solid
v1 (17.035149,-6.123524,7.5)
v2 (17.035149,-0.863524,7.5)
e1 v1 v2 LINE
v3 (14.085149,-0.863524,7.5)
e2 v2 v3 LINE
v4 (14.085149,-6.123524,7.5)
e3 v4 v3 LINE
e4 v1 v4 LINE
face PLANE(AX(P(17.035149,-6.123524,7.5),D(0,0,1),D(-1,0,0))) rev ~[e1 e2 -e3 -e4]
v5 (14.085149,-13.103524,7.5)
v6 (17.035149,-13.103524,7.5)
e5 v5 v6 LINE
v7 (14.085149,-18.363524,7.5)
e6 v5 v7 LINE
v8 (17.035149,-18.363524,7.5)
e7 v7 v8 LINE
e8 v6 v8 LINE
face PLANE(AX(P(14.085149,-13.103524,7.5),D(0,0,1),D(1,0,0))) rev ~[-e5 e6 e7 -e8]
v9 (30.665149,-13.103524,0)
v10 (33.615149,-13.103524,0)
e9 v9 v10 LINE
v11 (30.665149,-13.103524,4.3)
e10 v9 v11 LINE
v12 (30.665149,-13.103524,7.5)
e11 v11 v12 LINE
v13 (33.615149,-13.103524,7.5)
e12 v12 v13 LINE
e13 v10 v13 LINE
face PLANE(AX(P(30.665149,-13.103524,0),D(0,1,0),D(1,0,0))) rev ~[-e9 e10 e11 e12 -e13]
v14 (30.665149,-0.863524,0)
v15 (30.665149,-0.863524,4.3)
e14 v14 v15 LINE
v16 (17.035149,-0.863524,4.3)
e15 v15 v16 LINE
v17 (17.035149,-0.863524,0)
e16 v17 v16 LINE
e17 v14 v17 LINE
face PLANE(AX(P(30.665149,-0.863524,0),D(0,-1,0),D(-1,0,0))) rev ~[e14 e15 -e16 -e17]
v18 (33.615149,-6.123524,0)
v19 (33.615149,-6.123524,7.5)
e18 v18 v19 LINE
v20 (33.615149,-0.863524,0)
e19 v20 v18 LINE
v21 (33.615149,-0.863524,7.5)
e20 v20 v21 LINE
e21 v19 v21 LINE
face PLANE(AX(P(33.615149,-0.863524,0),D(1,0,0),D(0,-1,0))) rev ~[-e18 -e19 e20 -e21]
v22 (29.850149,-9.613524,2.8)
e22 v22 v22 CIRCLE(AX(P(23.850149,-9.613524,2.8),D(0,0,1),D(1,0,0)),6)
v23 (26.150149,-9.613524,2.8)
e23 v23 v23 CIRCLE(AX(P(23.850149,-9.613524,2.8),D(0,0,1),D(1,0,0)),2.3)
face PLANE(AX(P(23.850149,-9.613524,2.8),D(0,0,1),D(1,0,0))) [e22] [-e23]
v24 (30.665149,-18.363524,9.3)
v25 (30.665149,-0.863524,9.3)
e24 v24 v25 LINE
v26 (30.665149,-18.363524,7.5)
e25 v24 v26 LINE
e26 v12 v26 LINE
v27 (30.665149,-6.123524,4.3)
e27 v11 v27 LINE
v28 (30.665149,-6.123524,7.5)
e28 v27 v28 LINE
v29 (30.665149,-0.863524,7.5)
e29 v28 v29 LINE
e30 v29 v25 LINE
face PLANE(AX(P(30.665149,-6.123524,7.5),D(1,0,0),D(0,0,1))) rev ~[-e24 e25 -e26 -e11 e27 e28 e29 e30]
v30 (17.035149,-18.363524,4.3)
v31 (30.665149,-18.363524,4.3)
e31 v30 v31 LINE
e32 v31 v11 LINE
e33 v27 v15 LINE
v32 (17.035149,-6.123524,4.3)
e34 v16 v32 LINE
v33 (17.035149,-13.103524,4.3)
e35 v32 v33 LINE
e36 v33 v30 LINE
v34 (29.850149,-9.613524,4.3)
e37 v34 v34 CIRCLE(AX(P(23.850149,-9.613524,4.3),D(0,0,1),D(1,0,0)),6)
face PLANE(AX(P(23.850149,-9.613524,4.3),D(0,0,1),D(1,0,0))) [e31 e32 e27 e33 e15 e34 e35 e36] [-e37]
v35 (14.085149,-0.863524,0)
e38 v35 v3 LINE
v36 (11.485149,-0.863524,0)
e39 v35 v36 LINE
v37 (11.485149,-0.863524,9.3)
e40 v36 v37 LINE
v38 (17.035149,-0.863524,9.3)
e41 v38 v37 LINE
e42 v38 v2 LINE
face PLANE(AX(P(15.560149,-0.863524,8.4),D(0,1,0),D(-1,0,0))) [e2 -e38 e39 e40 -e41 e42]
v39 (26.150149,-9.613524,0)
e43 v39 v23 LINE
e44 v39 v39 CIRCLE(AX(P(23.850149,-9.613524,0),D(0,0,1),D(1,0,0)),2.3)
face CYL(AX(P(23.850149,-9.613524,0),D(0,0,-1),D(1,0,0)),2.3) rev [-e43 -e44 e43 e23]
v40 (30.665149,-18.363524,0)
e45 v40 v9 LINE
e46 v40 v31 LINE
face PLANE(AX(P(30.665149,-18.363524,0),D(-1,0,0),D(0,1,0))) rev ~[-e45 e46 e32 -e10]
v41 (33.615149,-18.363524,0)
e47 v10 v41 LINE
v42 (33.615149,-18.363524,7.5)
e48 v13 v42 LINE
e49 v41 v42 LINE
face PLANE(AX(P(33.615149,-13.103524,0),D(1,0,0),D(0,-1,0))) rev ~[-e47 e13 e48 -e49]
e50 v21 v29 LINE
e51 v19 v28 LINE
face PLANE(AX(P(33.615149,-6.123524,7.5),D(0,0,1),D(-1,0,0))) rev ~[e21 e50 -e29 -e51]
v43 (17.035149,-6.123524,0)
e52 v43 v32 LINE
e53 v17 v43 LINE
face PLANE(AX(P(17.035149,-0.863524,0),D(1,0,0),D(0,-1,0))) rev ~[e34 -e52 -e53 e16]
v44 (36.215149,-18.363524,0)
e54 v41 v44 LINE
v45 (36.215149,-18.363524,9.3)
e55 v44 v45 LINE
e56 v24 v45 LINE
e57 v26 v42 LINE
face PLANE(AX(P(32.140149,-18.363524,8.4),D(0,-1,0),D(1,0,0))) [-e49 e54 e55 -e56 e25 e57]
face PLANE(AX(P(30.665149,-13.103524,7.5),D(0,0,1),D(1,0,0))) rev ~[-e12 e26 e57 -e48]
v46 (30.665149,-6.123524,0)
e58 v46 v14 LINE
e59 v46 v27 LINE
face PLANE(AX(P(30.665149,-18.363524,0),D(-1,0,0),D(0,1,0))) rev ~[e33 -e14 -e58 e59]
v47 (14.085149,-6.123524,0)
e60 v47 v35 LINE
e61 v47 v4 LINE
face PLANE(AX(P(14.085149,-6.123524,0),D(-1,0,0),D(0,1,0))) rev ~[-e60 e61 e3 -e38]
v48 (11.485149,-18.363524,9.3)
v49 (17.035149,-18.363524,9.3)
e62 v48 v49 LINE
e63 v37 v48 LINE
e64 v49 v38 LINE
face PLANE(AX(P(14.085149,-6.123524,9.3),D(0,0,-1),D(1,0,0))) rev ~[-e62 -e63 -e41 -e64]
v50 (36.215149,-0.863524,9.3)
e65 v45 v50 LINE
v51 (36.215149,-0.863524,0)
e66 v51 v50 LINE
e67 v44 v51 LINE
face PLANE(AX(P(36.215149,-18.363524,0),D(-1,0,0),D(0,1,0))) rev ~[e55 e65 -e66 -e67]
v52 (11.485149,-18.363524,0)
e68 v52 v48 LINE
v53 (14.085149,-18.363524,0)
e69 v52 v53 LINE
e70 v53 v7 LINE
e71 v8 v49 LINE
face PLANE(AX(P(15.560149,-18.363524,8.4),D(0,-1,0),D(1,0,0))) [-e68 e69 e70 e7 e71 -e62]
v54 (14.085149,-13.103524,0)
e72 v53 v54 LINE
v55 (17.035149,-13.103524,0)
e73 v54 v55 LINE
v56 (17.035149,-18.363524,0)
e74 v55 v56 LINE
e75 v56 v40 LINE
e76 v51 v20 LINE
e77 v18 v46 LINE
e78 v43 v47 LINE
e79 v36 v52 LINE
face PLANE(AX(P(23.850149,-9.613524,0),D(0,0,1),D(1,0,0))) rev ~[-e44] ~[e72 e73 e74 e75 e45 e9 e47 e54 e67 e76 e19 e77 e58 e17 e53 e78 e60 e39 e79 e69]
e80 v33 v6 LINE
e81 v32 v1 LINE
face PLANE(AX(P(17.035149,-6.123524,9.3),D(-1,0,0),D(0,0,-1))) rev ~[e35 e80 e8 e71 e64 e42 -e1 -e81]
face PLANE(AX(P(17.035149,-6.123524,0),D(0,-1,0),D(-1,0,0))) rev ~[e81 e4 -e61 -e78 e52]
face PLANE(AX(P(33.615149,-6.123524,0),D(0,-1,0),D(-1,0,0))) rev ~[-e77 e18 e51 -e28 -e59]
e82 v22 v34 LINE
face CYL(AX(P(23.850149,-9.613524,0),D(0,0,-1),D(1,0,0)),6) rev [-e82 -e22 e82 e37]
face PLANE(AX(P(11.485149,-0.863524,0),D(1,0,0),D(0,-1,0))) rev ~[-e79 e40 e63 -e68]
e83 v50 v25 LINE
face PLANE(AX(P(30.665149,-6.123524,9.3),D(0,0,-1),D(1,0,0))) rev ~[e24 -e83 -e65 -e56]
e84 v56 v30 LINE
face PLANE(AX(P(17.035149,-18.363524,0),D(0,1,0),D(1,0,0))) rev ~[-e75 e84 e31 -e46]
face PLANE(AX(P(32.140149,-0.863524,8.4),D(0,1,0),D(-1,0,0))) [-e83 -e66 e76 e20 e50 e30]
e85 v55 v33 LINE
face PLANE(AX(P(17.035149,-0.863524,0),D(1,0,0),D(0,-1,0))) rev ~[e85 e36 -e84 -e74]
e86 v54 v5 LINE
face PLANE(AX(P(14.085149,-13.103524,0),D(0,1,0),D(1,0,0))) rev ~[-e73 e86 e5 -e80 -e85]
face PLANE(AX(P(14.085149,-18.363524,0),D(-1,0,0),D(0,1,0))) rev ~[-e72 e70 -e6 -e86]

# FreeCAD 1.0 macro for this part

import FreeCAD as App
import Part
import Sketcher

V = App.Vector
Q = App.Units.Quantity

doc = App.newDocument("Part")
params = doc.addObject("Spreadsheet::Sheet", "Params")
for row, (alias, value) in enumerate([
    ("sketch1_width", "2.6 mm"),
    ("sketch1_height", "17.5 mm"),
    ("sketch1_width2", "2.95 mm"),
    ("sketch1_height2", "5.26 mm"),
    ("pad1_length", "9.3 mm"),
    ("sketch2_width", "2.6 mm"),
    ("sketch2_height", "17.5 mm"),
    ("sketch2_width2", "2.95 mm"),
    ("sketch2_height2", "5.26 mm"),
    ("pad2_length", "9.3 mm"),
    ("sketch3_diameter", "12 mm"),
    ("sketch3_height", "17.5 mm"),
    ("sketch3_width", "13.63 mm"),
    ("pad3_length", "4.3 mm"),
    ("sketch4_diameter", "12 mm"),
    ("sketch4_diameter2", "4.6 mm"),
    ("pad4_length", "2.8 mm"),
    ("sketch5_height", "1.8 mm"),
    ("sketch5_width", "2.95 mm"),
    ("pad5_length", "5.26 mm"),
    ("sketch6_height", "1.8 mm"),
    ("sketch6_width", "2.95 mm"),
    ("pad6_length", "5.26 mm"),
    ("sketch7_height", "1.8 mm"),
    ("sketch7_width", "2.95 mm"),
    ("pad7_length", "5.26 mm"),
    ("sketch8_height", "1.8 mm"),
    ("sketch8_width", "2.95 mm"),
    ("pad8_length", "5.26 mm"),
], start=1):
    params.set(f"A{row}", alias)
    params.set(f"B{row}", "=" + value)
    params.setAlias(f"B{row}", alias)

body = doc.addObject("PartDesign::Body", "Body")

# Sketch on XY plane
sketch1 = body.newObject("Sketcher::SketchObject", "Sketch")
sketch1.AttachmentSupport = (doc.getObject("XY_Plane"), [""])
sketch1.MapMode = "FlatFace"
sketch1.addGeometry(Part.LineSegment(V(36.215149, -0.863524, 0), V(33.615149, -0.863524, 0)), False)
sketch1.addGeometry(Part.LineSegment(V(33.615149, -0.863524, 0), V(33.615149, -6.123524, 0)), False)
sketch1.addGeometry(Part.LineSegment(V(33.615149, -6.123524, 0), V(30.665149, -6.123524, 0)), False)
sketch1.addGeometry(Part.LineSegment(V(30.665149, -6.123524, 0), V(30.665149, -13.103524, 0)), False)
sketch1.addGeometry(Part.LineSegment(V(30.665149, -13.103524, 0), V(33.615149, -13.103524, 0)), False)
sketch1.addGeometry(Part.LineSegment(V(33.615149, -13.103524, 0), V(33.615149, -18.363524, 0)), False)
sketch1.addGeometry(Part.LineSegment(V(33.615149, -18.363524, 0), V(36.215149, -18.363524, 0)), False)
sketch1.addGeometry(Part.LineSegment(V(36.215149, -18.363524, 0), V(36.215149, -0.863524, 0)), False)
sketch1.addConstraint(Sketcher.Constraint("Coincident", 0, 2, 1, 1))
sketch1.addConstraint(Sketcher.Constraint("Coincident", 1, 2, 2, 1))
sketch1.addConstraint(Sketcher.Constraint("Coincident", 2, 2, 3, 1))
sketch1.addConstraint(Sketcher.Constraint("Coincident", 3, 2, 4, 1))
sketch1.addConstraint(Sketcher.Constraint("Coincident", 4, 2, 5, 1))
sketch1.addConstraint(Sketcher.Constraint("Coincident", 5, 2, 6, 1))
sketch1.addConstraint(Sketcher.Constraint("Coincident", 6, 2, 7, 1))
sketch1.addConstraint(Sketcher.Constraint("Coincident", 7, 2, 0, 1))
sketch1.addConstraint(Sketcher.Constraint("Horizontal", 0))
sketch1.addConstraint(Sketcher.Constraint("Vertical", 1))
sketch1.addConstraint(Sketcher.Constraint("Horizontal", 2))
sketch1.addConstraint(Sketcher.Constraint("Vertical", 3))
sketch1.addConstraint(Sketcher.Constraint("Horizontal", 4))
sketch1.addConstraint(Sketcher.Constraint("Vertical", 5))
sketch1.addConstraint(Sketcher.Constraint("Horizontal", 6))
sketch1.addConstraint(Sketcher.Constraint("Vertical", 7))
sketch1.addConstraint(Sketcher.Constraint("Vertical", 1, 2, 4, 2))
sketch1.addConstraint(Sketcher.Constraint("Equal", 1, 5))
sketch1.addConstraint(Sketcher.Constraint("DistanceX", 0, 2, 0, 1, Q("2.6 mm")))
sketch1.addConstraint(Sketcher.Constraint("DistanceY", 7, 1, 7, 2, Q("17.5 mm")))
sketch1.addConstraint(Sketcher.Constraint("DistanceX", 2, 2, 2, 1, Q("2.95 mm")))
sketch1.addConstraint(Sketcher.Constraint("DistanceY", 1, 2, 1, 1, Q("5.26 mm")))
sketch1.addConstraint(Sketcher.Constraint("DistanceX", -1, 1, 0, 2, Q("33.615149 mm")))
sketch1.addConstraint(Sketcher.Constraint("DistanceY", 0, 2, -1, 1, Q("0.863524 mm")))
sketch1.setExpression("Constraints[18]", "Params.sketch1_width")
sketch1.setExpression("Constraints[19]", "Params.sketch1_height")
sketch1.setExpression("Constraints[20]", "Params.sketch1_width2")
sketch1.setExpression("Constraints[21]", "Params.sketch1_height2")
pad1 = body.newObject("PartDesign::Pad", "Pad")
pad1.Profile = sketch1
pad1.setExpression("Length", "Params.pad1_length")
body2 = doc.addObject("PartDesign::Body", "Body001")

# Sketch on XY plane
sketch2 = body2.newObject("Sketcher::SketchObject", "Sketch001")
sketch2.AttachmentSupport = (doc.getObject("XY_Plane001"), [""])
sketch2.MapMode = "FlatFace"
sketch2.addGeometry(Part.LineSegment(V(14.085149, -0.863524, 0), V(11.485149, -0.863524, 0)), False)
sketch2.addGeometry(Part.LineSegment(V(11.485149, -0.863524, 0), V(11.485149, -18.363524, 0)), False)
sketch2.addGeometry(Part.LineSegment(V(11.485149, -18.363524, 0), V(14.085149, -18.363524, 0)), False)
sketch2.addGeometry(Part.LineSegment(V(14.085149, -18.363524, 0), V(14.085149, -13.103524, 0)), False)
sketch2.addGeometry(Part.LineSegment(V(14.085149, -13.103524, 0), V(17.035149, -13.103524, 0)), False)
sketch2.addGeometry(Part.LineSegment(V(17.035149, -13.103524, 0), V(17.035149, -6.123524, 0)), False)
sketch2.addGeometry(Part.LineSegment(V(17.035149, -6.123524, 0), V(14.085149, -6.123524, 0)), False)
sketch2.addGeometry(Part.LineSegment(V(14.085149, -6.123524, 0), V(14.085149, -0.863524, 0)), False)
sketch2.addConstraint(Sketcher.Constraint("Coincident", 0, 2, 1, 1))
sketch2.addConstraint(Sketcher.Constraint("Coincident", 1, 2, 2, 1))
sketch2.addConstraint(Sketcher.Constraint("Coincident", 2, 2, 3, 1))
sketch2.addConstraint(Sketcher.Constraint("Coincident", 3, 2, 4, 1))
sketch2.addConstraint(Sketcher.Constraint("Coincident", 4, 2, 5, 1))
sketch2.addConstraint(Sketcher.Constraint("Coincident", 5, 2, 6, 1))
sketch2.addConstraint(Sketcher.Constraint("Coincident", 6, 2, 7, 1))
sketch2.addConstraint(Sketcher.Constraint("Coincident", 7, 2, 0, 1))
sketch2.addConstraint(Sketcher.Constraint("Horizontal", 0))
sketch2.addConstraint(Sketcher.Constraint("Vertical", 1))
sketch2.addConstraint(Sketcher.Constraint("Horizontal", 2))
sketch2.addConstraint(Sketcher.Constraint("Vertical", 3))
sketch2.addConstraint(Sketcher.Constraint("Horizontal", 4))
sketch2.addConstraint(Sketcher.Constraint("Vertical", 5))
sketch2.addConstraint(Sketcher.Constraint("Horizontal", 6))
sketch2.addConstraint(Sketcher.Constraint("Vertical", 7))
sketch2.addConstraint(Sketcher.Constraint("Vertical", 3, 2, 6, 2))
sketch2.addConstraint(Sketcher.Constraint("Equal", 3, 7))
sketch2.addConstraint(Sketcher.Constraint("DistanceX", 0, 2, 0, 1, Q("2.6 mm")))
sketch2.addConstraint(Sketcher.Constraint("DistanceY", 1, 2, 1, 1, Q("17.5 mm")))
sketch2.addConstraint(Sketcher.Constraint("DistanceX", 4, 1, 4, 2, Q("2.95 mm")))
sketch2.addConstraint(Sketcher.Constraint("DistanceY", 3, 1, 3, 2, Q("5.26 mm")))
sketch2.addConstraint(Sketcher.Constraint("DistanceX", -1, 1, 0, 2, Q("11.485149 mm")))
sketch2.addConstraint(Sketcher.Constraint("DistanceY", 0, 2, -1, 1, Q("0.863524 mm")))
sketch2.setExpression("Constraints[18]", "Params.sketch2_width")
sketch2.setExpression("Constraints[19]", "Params.sketch2_height")
sketch2.setExpression("Constraints[20]", "Params.sketch2_width2")
sketch2.setExpression("Constraints[21]", "Params.sketch2_height2")
pad2 = body2.newObject("PartDesign::Pad", "Pad001")
pad2.Profile = sketch2
pad2.setExpression("Length", "Params.pad2_length")
body.AllowCompound = True
doc.recompute()

boolean = body.newObject("PartDesign::Boolean", "Boolean")
boolean.Type = "Fuse"
boolean.addObjects([body2])

# Sketch on XY plane
sketch3 = body.newObject("Sketcher::SketchObject", "Sketch002")
sketch3.AttachmentSupport = (doc.getObject("XY_Plane"), [""])
sketch3.MapMode = "FlatFace"
sketch3.addGeometry(Part.LineSegment(V(30.665149, -0.863524, 0), V(17.035149, -0.863524, 0)), False)
sketch3.addGeometry(Part.LineSegment(V(17.035149, -0.863524, 0), V(17.035149, -18.363524, 0)), False)
sketch3.addGeometry(Part.LineSegment(V(17.035149, -18.363524, 0), V(30.665149, -18.363524, 0)), False)
sketch3.addGeometry(Part.LineSegment(V(30.665149, -18.363524, 0), V(30.665149, -0.863524, 0)), False)
sketch3.addGeometry(Part.Circle(V(23.850149, -9.613524, 0), V(0, 0, 1), 6), False)
sketch3.addConstraint(Sketcher.Constraint("Coincident", 0, 2, 1, 1))
sketch3.addConstraint(Sketcher.Constraint("Coincident", 1, 2, 2, 1))
sketch3.addConstraint(Sketcher.Constraint("Coincident", 2, 2, 3, 1))
sketch3.addConstraint(Sketcher.Constraint("Coincident", 3, 2, 0, 1))
sketch3.addConstraint(Sketcher.Constraint("Horizontal", 0))
sketch3.addConstraint(Sketcher.Constraint("Vertical", 1))
sketch3.addConstraint(Sketcher.Constraint("Horizontal", 2))
sketch3.addConstraint(Sketcher.Constraint("Vertical", 3))
sketch3.addConstraint(Sketcher.Constraint("Diameter", 4, Q("12 mm")))
sketch3.addConstraint(Sketcher.Constraint("DistanceY", 1, 2, 1, 1, Q("17.5 mm")))
sketch3.addConstraint(Sketcher.Constraint("DistanceX", 0, 2, 0, 1, Q("13.63 mm")))
sketch3.addConstraint(Sketcher.Constraint("DistanceY", 4, 3, 0, 2, Q("8.75 mm")))
sketch3.addConstraint(Sketcher.Constraint("DistanceX", 0, 2, 4, 3, Q("6.815 mm")))
sketch3.addConstraint(Sketcher.Constraint("DistanceX", -1, 1, 4, 3, Q("23.850149 mm")))
sketch3.addConstraint(Sketcher.Constraint("DistanceY", 4, 3, -1, 1, Q("9.613524 mm")))
sketch3.setExpression("Constraints[8]", "Params.sketch3_diameter")
sketch3.setExpression("Constraints[9]", "Params.sketch3_height")
sketch3.setExpression("Constraints[10]", "Params.sketch3_width")
pad3 = body.newObject("PartDesign::Pad", "Pad002")
pad3.Profile = sketch3
pad3.setExpression("Length", "Params.pad3_length")

# Sketch on XY plane
sketch4 = body.newObject("Sketcher::SketchObject", "Sketch003")
sketch4.AttachmentSupport = (doc.getObject("XY_Plane"), [""])
sketch4.MapMode = "FlatFace"
sketch4.addGeometry(Part.Circle(V(23.850149, -9.613524, 0), V(0, 0, 1), 6), False)
sketch4.addGeometry(Part.Circle(V(23.850149, -9.613524, 0), V(0, 0, 1), 2.3), False)
sketch4.addConstraint(Sketcher.Constraint("Coincident", 1, 3, 0, 3))
sketch4.addConstraint(Sketcher.Constraint("Diameter", 0, Q("12 mm")))
sketch4.addConstraint(Sketcher.Constraint("Diameter", 1, Q("4.6 mm")))
sketch4.addConstraint(Sketcher.Constraint("DistanceX", -1, 1, 0, 3, Q("23.850149 mm")))
sketch4.addConstraint(Sketcher.Constraint("DistanceY", 0, 3, -1, 1, Q("9.613524 mm")))
sketch4.setExpression("Constraints[1]", "Params.sketch4_diameter")
sketch4.setExpression("Constraints[2]", "Params.sketch4_diameter2")
pad4 = body.newObject("PartDesign::Pad", "Pad003")
pad4.Profile = sketch4
pad4.setExpression("Length", "Params.pad4_length")

# Sketch on XZ plane
sketch5 = body.newObject("Sketcher::SketchObject", "Sketch004")
sketch5.AttachmentSupport = (doc.getObject("XZ_Plane"), [""])
sketch5.MapMode = "FlatFace"
sketch5.AttachmentOffset = App.Placement(V(0, 0, 13.103524), App.Rotation())
sketch5.addGeometry(Part.LineSegment(V(17.035149, 7.5, 0), V(17.035149, 9.3, 0)), False)
sketch5.addGeometry(Part.LineSegment(V(17.035149, 9.3, 0), V(14.085149, 9.3, 0)), False)
sketch5.addGeometry(Part.LineSegment(V(14.085149, 9.3, 0), V(14.085149, 7.5, 0)), False)
sketch5.addGeometry(Part.LineSegment(V(14.085149, 7.5, 0), V(17.035149, 7.5, 0)), False)
sketch5.addConstraint(Sketcher.Constraint("Coincident", 0, 2, 1, 1))
sketch5.addConstraint(Sketcher.Constraint("Coincident", 1, 2, 2, 1))
sketch5.addConstraint(Sketcher.Constraint("Coincident", 2, 2, 3, 1))
sketch5.addConstraint(Sketcher.Constraint("Coincident", 3, 2, 0, 1))
sketch5.addConstraint(Sketcher.Constraint("Vertical", 0))
sketch5.addConstraint(Sketcher.Constraint("Horizontal", 1))
sketch5.addConstraint(Sketcher.Constraint("Vertical", 2))
sketch5.addConstraint(Sketcher.Constraint("Horizontal", 3))
sketch5.addConstraint(Sketcher.Constraint("DistanceY", 0, 1, 0, 2, Q("1.8 mm")))
sketch5.addConstraint(Sketcher.Constraint("DistanceX", 1, 2, 1, 1, Q("2.95 mm")))
sketch5.addConstraint(Sketcher.Constraint("DistanceY", -1, 1, 0, 2, Q("9.3 mm")))
sketch5.addConstraint(Sketcher.Constraint("DistanceX", -1, 1, 0, 2, Q("17.035149 mm")))
sketch5.setExpression("Constraints[8]", "Params.sketch5_height")
sketch5.setExpression("Constraints[9]", "Params.sketch5_width")
pad5 = body.newObject("PartDesign::Pad", "Pad004")
pad5.Profile = sketch5
pad5.setExpression("Length", "Params.pad5_length")

# Sketch on XZ plane
sketch6 = body.newObject("Sketcher::SketchObject", "Sketch005")
sketch6.AttachmentSupport = (doc.getObject("XZ_Plane"), [""])
sketch6.MapMode = "FlatFace"
sketch6.AttachmentOffset = App.Placement(V(0, 0, 13.103524), App.Rotation())
sketch6.addGeometry(Part.LineSegment(V(33.615149, 7.5, 0), V(33.615149, 9.3, 0)), False)
sketch6.addGeometry(Part.LineSegment(V(33.615149, 9.3, 0), V(30.665149, 9.3, 0)), False)
sketch6.addGeometry(Part.LineSegment(V(30.665149, 9.3, 0), V(30.665149, 7.5, 0)), False)
sketch6.addGeometry(Part.LineSegment(V(30.665149, 7.5, 0), V(33.615149, 7.5, 0)), False)
sketch6.addConstraint(Sketcher.Constraint("Coincident", 0, 2, 1, 1))
sketch6.addConstraint(Sketcher.Constraint("Coincident", 1, 2, 2, 1))
sketch6.addConstraint(Sketcher.Constraint("Coincident", 2, 2, 3, 1))
sketch6.addConstraint(Sketcher.Constraint("Coincident", 3, 2, 0, 1))
sketch6.addConstraint(Sketcher.Constraint("Vertical", 0))
sketch6.addConstraint(Sketcher.Constraint("Horizontal", 1))
sketch6.addConstraint(Sketcher.Constraint("Vertical", 2))
sketch6.addConstraint(Sketcher.Constraint("Horizontal", 3))
sketch6.addConstraint(Sketcher.Constraint("DistanceY", 0, 1, 0, 2, Q("1.8 mm")))
sketch6.addConstraint(Sketcher.Constraint("DistanceX", 1, 2, 1, 1, Q("2.95 mm")))
sketch6.addConstraint(Sketcher.Constraint("DistanceY", -1, 1, 0, 2, Q("9.3 mm")))
sketch6.addConstraint(Sketcher.Constraint("DistanceX", -1, 1, 0, 2, Q("33.615149 mm")))
sketch6.setExpression("Constraints[8]", "Params.sketch6_height")
sketch6.setExpression("Constraints[9]", "Params.sketch6_width")
pad6 = body.newObject("PartDesign::Pad", "Pad005")
pad6.Profile = sketch6
pad6.setExpression("Length", "Params.pad6_length")

# Sketch on XZ plane
sketch7 = body.newObject("Sketcher::SketchObject", "Sketch006")
sketch7.AttachmentSupport = (doc.getObject("XZ_Plane"), [""])
sketch7.MapMode = "FlatFace"
sketch7.AttachmentOffset = App.Placement(V(0, 0, 6.123524), App.Rotation())
sketch7.addGeometry(Part.LineSegment(V(30.665149, 7.5, 0), V(30.665149, 9.3, 0)), False)
sketch7.addGeometry(Part.LineSegment(V(30.665149, 9.3, 0), V(33.615149, 9.3, 0)), False)
sketch7.addGeometry(Part.LineSegment(V(33.615149, 9.3, 0), V(33.615149, 7.5, 0)), False)
sketch7.addGeometry(Part.LineSegment(V(33.615149, 7.5, 0), V(30.665149, 7.5, 0)), False)
sketch7.addConstraint(Sketcher.Constraint("Coincident", 0, 2, 1, 1))
sketch7.addConstraint(Sketcher.Constraint("Coincident", 1, 2, 2, 1))
sketch7.addConstraint(Sketcher.Constraint("Coincident", 2, 2, 3, 1))
sketch7.addConstraint(Sketcher.Constraint("Coincident", 3, 2, 0, 1))
sketch7.addConstraint(Sketcher.Constraint("Vertical", 0))
sketch7.addConstraint(Sketcher.Constraint("Horizontal", 1))
sketch7.addConstraint(Sketcher.Constraint("Vertical", 2))
sketch7.addConstraint(Sketcher.Constraint("Horizontal", 3))
sketch7.addConstraint(Sketcher.Constraint("DistanceY", 0, 1, 0, 2, Q("1.8 mm")))
sketch7.addConstraint(Sketcher.Constraint("DistanceX", 1, 1, 1, 2, Q("2.95 mm")))
sketch7.addConstraint(Sketcher.Constraint("DistanceY", -1, 1, 0, 2, Q("9.3 mm")))
sketch7.addConstraint(Sketcher.Constraint("DistanceX", -1, 1, 0, 2, Q("30.665149 mm")))
sketch7.setExpression("Constraints[8]", "Params.sketch7_height")
sketch7.setExpression("Constraints[9]", "Params.sketch7_width")
pad7 = body.newObject("PartDesign::Pad", "Pad006")
pad7.Profile = sketch7
pad7.setExpression("Length", "Params.pad7_length")
pad7.Reversed = True

# Sketch on XZ plane
sketch8 = body.newObject("Sketcher::SketchObject", "Sketch007")
sketch8.AttachmentSupport = (doc.getObject("XZ_Plane"), [""])
sketch8.MapMode = "FlatFace"
sketch8.AttachmentOffset = App.Placement(V(0, 0, 6.123524), App.Rotation())
sketch8.addGeometry(Part.LineSegment(V(14.085149, 7.5, 0), V(14.085149, 9.3, 0)), False)
sketch8.addGeometry(Part.LineSegment(V(14.085149, 9.3, 0), V(17.035149, 9.3, 0)), False)
sketch8.addGeometry(Part.LineSegment(V(17.035149, 9.3, 0), V(17.035149, 7.5, 0)), False)
sketch8.addGeometry(Part.LineSegment(V(17.035149, 7.5, 0), V(14.085149, 7.5, 0)), False)
sketch8.addConstraint(Sketcher.Constraint("Coincident", 0, 2, 1, 1))
sketch8.addConstraint(Sketcher.Constraint("Coincident", 1, 2, 2, 1))
sketch8.addConstraint(Sketcher.Constraint("Coincident", 2, 2, 3, 1))
sketch8.addConstraint(Sketcher.Constraint("Coincident", 3, 2, 0, 1))
sketch8.addConstraint(Sketcher.Constraint("Vertical", 0))
sketch8.addConstraint(Sketcher.Constraint("Horizontal", 1))
sketch8.addConstraint(Sketcher.Constraint("Vertical", 2))
sketch8.addConstraint(Sketcher.Constraint("Horizontal", 3))
sketch8.addConstraint(Sketcher.Constraint("DistanceY", 0, 1, 0, 2, Q("1.8 mm")))
sketch8.addConstraint(Sketcher.Constraint("DistanceX", 1, 1, 1, 2, Q("2.95 mm")))
sketch8.addConstraint(Sketcher.Constraint("DistanceY", -1, 1, 0, 2, Q("9.3 mm")))
sketch8.addConstraint(Sketcher.Constraint("DistanceX", -1, 1, 0, 2, Q("14.085149 mm")))
sketch8.setExpression("Constraints[8]", "Params.sketch8_height")
sketch8.setExpression("Constraints[9]", "Params.sketch8_width")
pad8 = body.newObject("PartDesign::Pad", "Pad007")
pad8.Profile = sketch8
pad8.setExpression("Length", "Params.pad8_length")
pad8.Reversed = True

doc.recompute()
